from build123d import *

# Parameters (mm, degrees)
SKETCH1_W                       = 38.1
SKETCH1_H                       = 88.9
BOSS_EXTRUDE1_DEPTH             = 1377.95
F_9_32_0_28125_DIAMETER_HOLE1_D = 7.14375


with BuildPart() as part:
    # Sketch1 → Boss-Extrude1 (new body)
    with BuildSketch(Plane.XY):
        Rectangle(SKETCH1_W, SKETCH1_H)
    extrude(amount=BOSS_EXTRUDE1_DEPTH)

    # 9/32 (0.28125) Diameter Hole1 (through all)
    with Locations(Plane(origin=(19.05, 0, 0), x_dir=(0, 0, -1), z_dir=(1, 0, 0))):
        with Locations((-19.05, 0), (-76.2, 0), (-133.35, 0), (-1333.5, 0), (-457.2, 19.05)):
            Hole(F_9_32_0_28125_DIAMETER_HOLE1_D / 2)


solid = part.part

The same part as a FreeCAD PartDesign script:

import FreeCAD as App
import Part
import Sketcher
from FreeCAD import Vector
Q = App.Units.Quantity

doc = App.newDocument("Part")
body = doc.addObject("PartDesign::Body", "Body")

# Sketch on XY plane
sketch1 = body.newObject("Sketcher::SketchObject", "Sketch")
sketch1.AttachmentSupport = (doc.getObject("XY_Plane"), [""])
sketch1.MapMode = "FlatFace"
sketch1.addGeometry([
    Part.LineSegment(Vector(-19, 44, 0), Vector(-19, -44, 0)),
    Part.LineSegment(Vector(-19, -44, 0), Vector(19, -44, 0)),
    Part.LineSegment(Vector(19, -44, 0), Vector(19, 44, 0)),
    Part.LineSegment(Vector(19, 44, 0), Vector(-19, 44, 0)),
], False)
sketch1.addConstraint([
    Sketcher.Constraint("Coincident", 0, 2, 1, 1),
    Sketcher.Constraint("Coincident", 1, 2, 2, 1),
    Sketcher.Constraint("Coincident", 2, 2, 3, 1),
    Sketcher.Constraint("Coincident", 3, 2, 0, 1),
    Sketcher.Constraint("Vertical", 0),
    Sketcher.Constraint("Horizontal", 1),
    Sketcher.Constraint("Vertical", 2),
    Sketcher.Constraint("Horizontal", 3),
    Sketcher.Constraint("Symmetric", 0, 2, 2, 2, -1, 1),
    Sketcher.Constraint("DistanceX", 1, 1, 1, 2, Q("1.5 in")),
    Sketcher.Constraint("DistanceY", 0, 2, 0, 1, Q("3.5 in")),
])
pad1 = body.newObject("PartDesign::Pad", "Pad")
pad1.Profile = sketch1
pad1.Length = Q("54.25 in")

# Sketch on YZ plane
sketch2 = body.newObject("Sketcher::SketchObject", "Sketch001")
sketch2.AttachmentSupport = (doc.getObject("YZ_Plane"), [""])
sketch2.MapMode = "FlatFace"
sketch2.AttachmentOffset = App.Placement(Vector(0, 0, 0.75 * 25.4), App.Rotation())
sketch2.addGeometry([
    Part.Circle(Vector(0, 19.1, 0), Vector(0, 0, 1), 3.6),  # 0
    Part.Circle(Vector(0, 76.2, 0), Vector(0, 0, 1), 3.6),  # 1
    Part.Circle(Vector(0, 133.3, 0), Vector(0, 0, 1), 3.6),  # 2
    Part.Circle(Vector(0, 1333.5, 0), Vector(0, 0, 1), 3.6),  # 3
    Part.Circle(Vector(19.1, 457.2, 0), Vector(0, 0, 1), 3.6),  # 4
], False)
sketch2.addConstraint([
    Sketcher.Constraint("Equal", 0, 1),
    Sketcher.Constraint("Equal", 1, 2),
    Sketcher.Constraint("Equal", 2, 3),
    Sketcher.Constraint("Equal", 3, 4),
    Sketcher.Constraint("PointOnObject", 0, 3, -2),
    Sketcher.Constraint("PointOnObject", 1, 3, -2),
    Sketcher.Constraint("PointOnObject", 2, 3, -2),
    Sketcher.Constraint("PointOnObject", 3, 3, -2),
    Sketcher.Constraint("Diameter", 0, Q("0.28125 in")),
    Sketcher.Constraint("DistanceY", -1, 1, 1, 3, Q("3 in")),
    Sketcher.Constraint("DistanceY", -1, 1, 4, 3, Q("18 in")),
    Sketcher.Constraint("DistanceY", -1, 1, 3, 3, Q("52.5 in")),
    Sketcher.Constraint("DistanceY", 0, 3, 2, 3, Q("4.5 in")),
    Sketcher.Constraint("DistanceY", -1, 1, 0, 3, Q("0.75 in")),
    Sketcher.Constraint("DistanceX", -1, 1, 4, 3, Q("0.75 in")),
])
doc.recompute()
hole = body.newObject("PartDesign::Hole", "Hole")
hole.Profile = sketch2
hole.ThreadType = "None"
hole.Diameter = Q("0.28125 in")
hole.DepthType = "ThroughAll"

doc.recompute()
